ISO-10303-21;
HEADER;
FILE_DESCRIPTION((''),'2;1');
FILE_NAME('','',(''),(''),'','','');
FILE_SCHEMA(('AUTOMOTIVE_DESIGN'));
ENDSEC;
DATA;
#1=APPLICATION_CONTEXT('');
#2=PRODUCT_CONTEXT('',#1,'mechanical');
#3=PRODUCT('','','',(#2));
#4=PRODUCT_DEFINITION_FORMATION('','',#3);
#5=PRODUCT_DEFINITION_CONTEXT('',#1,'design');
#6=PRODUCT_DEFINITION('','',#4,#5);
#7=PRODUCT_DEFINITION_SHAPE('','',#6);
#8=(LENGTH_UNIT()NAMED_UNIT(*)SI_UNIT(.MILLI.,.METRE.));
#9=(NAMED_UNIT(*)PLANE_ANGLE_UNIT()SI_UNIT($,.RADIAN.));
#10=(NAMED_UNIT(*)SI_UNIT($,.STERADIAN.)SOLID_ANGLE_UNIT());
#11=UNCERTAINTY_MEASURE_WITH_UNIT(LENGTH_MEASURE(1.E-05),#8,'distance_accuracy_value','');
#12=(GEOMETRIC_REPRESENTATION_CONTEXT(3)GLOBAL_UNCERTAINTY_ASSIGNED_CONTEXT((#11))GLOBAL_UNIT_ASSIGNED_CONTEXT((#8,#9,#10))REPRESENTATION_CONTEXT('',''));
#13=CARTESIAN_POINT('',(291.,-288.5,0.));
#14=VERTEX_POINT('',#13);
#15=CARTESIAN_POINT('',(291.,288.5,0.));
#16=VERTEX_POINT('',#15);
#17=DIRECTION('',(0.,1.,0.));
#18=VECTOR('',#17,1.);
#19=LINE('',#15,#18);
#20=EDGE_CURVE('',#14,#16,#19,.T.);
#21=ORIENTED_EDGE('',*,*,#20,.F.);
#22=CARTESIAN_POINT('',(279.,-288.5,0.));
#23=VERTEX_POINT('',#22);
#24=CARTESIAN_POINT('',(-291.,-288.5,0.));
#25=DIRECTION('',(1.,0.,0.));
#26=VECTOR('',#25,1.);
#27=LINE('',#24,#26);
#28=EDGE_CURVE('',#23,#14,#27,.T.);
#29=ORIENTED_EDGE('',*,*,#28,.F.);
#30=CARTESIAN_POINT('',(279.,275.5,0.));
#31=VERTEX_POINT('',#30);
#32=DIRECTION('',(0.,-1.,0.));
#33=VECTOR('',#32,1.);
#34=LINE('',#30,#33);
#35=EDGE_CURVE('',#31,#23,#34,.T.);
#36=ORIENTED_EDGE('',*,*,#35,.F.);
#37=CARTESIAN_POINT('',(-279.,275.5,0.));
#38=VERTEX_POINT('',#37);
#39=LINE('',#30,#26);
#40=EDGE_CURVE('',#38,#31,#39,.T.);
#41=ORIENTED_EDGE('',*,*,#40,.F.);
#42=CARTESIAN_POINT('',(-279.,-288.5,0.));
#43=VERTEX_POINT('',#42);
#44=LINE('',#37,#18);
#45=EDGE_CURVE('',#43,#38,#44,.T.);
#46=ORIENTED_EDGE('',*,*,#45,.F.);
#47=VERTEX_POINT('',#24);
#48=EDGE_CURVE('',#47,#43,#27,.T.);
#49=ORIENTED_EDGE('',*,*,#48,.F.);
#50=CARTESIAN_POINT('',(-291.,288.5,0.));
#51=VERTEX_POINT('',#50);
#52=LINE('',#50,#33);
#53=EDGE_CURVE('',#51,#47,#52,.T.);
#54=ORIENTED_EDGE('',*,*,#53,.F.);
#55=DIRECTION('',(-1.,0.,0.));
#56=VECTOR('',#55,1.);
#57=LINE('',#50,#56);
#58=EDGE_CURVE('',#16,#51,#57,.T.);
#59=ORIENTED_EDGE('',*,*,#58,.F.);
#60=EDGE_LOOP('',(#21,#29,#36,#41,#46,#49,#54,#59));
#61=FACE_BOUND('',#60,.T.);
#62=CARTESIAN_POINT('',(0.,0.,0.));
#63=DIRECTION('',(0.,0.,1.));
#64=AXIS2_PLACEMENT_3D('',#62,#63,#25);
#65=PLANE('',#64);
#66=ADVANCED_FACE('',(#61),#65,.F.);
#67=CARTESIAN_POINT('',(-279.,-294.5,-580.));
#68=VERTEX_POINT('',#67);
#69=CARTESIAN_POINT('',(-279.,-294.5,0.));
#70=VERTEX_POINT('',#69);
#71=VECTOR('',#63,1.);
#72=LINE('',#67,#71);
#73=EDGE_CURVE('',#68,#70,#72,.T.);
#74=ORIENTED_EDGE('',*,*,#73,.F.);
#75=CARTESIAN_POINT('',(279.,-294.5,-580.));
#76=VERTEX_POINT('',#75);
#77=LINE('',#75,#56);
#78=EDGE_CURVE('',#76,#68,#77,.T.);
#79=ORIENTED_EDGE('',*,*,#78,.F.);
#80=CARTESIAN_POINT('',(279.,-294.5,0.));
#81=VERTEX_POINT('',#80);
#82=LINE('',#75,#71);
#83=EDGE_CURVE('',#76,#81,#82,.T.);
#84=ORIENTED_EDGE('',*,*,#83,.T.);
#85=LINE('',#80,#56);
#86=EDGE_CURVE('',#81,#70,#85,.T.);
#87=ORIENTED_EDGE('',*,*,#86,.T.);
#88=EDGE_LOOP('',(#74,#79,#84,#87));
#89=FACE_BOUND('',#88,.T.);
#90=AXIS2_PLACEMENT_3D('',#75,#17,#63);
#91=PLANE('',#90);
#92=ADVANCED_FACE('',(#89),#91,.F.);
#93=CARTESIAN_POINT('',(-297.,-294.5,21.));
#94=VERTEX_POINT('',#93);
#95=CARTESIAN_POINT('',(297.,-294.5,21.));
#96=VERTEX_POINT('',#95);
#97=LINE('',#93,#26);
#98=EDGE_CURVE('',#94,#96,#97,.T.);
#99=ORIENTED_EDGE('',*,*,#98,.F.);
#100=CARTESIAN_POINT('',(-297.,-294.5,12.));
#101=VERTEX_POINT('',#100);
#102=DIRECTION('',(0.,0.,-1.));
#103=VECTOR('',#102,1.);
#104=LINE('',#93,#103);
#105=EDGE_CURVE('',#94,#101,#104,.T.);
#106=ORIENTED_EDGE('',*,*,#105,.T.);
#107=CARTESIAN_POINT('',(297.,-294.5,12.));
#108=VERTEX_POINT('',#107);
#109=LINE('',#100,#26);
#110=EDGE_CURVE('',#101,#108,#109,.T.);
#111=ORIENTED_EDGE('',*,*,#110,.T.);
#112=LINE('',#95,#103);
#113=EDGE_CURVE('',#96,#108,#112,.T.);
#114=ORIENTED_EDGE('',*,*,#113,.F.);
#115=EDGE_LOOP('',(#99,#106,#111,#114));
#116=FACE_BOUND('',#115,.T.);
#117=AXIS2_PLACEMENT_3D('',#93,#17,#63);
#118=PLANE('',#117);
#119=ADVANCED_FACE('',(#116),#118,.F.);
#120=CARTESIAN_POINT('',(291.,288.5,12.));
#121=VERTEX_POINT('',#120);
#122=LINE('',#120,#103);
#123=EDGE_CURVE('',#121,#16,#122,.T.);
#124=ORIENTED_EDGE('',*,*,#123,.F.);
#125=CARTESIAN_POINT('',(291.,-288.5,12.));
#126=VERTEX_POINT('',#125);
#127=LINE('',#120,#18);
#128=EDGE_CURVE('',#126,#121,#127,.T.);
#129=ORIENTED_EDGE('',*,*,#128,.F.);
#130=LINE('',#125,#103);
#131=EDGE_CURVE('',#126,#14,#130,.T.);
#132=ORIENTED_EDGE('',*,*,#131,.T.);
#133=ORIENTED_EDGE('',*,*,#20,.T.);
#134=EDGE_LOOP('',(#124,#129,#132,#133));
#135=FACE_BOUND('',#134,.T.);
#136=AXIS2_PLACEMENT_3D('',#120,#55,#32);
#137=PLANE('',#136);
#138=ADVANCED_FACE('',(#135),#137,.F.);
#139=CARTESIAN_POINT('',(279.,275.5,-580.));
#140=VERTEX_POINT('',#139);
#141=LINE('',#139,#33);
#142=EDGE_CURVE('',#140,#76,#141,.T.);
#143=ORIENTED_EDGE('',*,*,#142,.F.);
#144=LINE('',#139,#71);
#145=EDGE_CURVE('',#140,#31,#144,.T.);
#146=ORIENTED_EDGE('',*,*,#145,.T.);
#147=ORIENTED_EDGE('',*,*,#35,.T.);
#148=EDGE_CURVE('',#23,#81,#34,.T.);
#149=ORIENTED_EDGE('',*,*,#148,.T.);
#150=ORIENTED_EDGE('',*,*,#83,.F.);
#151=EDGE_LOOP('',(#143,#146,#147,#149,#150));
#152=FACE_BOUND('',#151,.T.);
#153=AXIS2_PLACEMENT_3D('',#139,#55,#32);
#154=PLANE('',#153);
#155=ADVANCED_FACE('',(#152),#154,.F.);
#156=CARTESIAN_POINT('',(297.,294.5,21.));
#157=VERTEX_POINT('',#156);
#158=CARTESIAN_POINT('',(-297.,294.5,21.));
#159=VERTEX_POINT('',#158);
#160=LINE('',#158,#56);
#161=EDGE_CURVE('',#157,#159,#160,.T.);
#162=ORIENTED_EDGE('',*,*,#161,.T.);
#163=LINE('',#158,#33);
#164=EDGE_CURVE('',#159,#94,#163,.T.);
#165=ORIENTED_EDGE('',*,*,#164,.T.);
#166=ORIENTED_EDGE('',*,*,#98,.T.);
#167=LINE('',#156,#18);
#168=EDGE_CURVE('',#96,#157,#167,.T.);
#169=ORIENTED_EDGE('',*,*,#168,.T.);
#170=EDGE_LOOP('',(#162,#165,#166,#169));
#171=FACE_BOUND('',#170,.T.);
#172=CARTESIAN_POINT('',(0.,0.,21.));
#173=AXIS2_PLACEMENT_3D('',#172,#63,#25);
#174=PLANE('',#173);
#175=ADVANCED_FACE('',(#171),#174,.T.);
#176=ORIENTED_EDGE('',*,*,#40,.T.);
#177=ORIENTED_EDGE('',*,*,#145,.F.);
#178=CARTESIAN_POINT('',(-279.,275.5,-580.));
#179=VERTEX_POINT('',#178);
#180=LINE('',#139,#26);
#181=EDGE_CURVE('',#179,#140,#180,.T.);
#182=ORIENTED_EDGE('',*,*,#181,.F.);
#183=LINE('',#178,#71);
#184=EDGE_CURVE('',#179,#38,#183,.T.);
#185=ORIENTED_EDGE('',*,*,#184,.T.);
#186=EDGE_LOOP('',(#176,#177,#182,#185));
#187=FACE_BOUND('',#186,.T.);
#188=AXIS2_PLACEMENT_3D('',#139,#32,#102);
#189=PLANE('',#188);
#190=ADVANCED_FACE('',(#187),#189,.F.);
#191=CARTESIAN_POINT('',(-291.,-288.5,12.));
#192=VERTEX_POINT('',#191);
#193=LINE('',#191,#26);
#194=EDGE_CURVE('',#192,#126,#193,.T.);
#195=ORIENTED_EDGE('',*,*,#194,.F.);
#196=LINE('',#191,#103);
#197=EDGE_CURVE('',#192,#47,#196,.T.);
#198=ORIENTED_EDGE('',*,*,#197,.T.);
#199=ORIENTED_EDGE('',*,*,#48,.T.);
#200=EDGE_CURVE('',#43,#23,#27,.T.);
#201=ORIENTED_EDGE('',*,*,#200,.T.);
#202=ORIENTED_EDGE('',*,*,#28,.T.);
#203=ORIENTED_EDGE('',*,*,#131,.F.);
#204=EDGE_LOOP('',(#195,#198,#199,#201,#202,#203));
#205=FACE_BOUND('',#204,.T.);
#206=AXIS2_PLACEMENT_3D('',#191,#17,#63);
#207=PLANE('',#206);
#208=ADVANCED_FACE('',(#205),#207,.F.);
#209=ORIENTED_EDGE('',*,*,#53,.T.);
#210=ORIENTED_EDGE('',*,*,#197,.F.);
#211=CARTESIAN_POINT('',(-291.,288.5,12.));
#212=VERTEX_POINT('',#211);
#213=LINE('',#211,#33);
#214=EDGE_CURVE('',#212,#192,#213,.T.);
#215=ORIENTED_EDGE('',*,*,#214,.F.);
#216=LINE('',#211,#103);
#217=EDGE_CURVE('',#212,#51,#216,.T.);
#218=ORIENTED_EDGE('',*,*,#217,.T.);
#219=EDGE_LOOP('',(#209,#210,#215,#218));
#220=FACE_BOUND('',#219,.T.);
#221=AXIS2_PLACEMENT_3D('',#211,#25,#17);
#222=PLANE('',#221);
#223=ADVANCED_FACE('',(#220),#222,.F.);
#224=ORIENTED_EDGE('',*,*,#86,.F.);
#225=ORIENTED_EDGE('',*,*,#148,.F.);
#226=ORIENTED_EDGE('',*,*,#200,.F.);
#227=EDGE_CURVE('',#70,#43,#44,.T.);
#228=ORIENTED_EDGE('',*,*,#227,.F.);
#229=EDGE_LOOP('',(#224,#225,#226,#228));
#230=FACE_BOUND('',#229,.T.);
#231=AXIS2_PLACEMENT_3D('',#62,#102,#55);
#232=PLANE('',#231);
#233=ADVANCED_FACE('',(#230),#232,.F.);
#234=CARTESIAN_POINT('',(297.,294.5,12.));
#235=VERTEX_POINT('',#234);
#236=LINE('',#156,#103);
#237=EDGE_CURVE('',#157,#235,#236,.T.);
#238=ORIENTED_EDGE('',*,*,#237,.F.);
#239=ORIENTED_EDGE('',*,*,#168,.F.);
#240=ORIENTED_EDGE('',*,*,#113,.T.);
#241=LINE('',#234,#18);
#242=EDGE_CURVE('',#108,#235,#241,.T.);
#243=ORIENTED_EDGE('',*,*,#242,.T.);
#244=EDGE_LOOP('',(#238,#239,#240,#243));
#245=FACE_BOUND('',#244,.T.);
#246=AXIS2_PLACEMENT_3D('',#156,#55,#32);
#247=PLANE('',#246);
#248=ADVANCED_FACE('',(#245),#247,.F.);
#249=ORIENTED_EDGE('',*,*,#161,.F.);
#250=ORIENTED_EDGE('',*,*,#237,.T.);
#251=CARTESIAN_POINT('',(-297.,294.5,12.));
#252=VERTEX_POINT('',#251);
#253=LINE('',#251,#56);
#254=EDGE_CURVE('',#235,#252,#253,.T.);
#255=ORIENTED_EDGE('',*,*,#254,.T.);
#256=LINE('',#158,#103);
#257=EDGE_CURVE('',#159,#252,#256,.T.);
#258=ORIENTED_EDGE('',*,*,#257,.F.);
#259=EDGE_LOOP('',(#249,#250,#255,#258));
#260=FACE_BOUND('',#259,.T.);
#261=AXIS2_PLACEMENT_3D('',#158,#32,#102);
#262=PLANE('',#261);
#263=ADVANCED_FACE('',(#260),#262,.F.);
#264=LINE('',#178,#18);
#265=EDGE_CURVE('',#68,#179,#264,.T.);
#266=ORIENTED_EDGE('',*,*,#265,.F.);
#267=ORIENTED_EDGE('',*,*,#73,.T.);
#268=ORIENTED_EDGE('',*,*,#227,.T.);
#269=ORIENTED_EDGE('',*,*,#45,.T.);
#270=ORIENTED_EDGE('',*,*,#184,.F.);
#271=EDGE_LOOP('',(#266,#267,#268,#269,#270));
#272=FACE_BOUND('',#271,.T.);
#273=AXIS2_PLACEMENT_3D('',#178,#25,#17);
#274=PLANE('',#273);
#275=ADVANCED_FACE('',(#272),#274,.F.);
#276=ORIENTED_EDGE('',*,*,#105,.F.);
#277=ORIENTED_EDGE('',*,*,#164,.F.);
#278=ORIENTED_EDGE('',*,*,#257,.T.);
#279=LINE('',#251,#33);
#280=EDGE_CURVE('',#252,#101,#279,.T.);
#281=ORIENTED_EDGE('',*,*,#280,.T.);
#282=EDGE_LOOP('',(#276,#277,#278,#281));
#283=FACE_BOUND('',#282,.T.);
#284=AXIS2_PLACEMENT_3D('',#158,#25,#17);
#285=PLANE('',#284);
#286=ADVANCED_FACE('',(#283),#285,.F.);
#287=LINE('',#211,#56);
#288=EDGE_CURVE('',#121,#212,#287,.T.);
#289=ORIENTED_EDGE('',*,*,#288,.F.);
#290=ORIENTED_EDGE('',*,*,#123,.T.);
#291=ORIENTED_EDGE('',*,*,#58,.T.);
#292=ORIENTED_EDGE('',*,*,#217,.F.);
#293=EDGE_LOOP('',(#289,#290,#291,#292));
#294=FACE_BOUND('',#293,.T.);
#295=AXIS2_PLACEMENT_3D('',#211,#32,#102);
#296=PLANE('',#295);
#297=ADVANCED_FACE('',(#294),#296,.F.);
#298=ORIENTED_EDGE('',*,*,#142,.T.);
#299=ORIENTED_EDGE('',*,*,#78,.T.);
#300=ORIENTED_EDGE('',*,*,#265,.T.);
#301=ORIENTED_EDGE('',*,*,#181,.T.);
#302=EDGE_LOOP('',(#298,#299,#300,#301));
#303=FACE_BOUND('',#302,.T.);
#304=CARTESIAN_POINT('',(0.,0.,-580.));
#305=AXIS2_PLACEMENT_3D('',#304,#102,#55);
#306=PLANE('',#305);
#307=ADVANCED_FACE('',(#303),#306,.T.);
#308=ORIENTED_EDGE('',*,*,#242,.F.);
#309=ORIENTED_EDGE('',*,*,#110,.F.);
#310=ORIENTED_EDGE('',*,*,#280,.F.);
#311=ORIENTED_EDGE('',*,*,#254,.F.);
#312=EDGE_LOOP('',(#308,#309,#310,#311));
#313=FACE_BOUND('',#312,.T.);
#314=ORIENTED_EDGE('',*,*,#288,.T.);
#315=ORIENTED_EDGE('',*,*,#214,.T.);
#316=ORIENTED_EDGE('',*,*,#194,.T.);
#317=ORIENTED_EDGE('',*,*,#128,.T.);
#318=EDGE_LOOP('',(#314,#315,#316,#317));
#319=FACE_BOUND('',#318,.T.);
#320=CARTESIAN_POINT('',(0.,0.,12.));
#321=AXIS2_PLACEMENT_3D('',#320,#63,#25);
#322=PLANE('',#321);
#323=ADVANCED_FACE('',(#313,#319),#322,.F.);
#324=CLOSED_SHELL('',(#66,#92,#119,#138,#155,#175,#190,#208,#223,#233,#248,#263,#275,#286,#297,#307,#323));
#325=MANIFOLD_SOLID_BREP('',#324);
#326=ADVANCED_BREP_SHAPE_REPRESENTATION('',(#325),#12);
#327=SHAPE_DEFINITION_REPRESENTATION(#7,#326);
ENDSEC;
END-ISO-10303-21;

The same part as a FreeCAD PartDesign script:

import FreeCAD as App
import Part
import Sketcher
Q = App.Units.Quantity


def add_polygon(sketch, points):
    """Adds a closed chain of lines whose ends are joined by coincident constraints."""
    first, n = sketch.GeometryCount, len(points)
    for a, b in zip(points, points[1:] + points[:1]):
        sketch.addGeometry(Part.LineSegment(App.Vector(*a, 0), App.Vector(*b, 0)), False)
    for i in range(n):
        sketch.addConstraint(Sketcher.Constraint("Coincident", first + i, 2, first + (i + 1) % n, 1))

doc = App.newDocument("Part")
body = doc.addObject("PartDesign::Body", "Body")

# Sketch on XY plane
sketch1 = body.newObject("Sketcher::SketchObject", "Sketch")
sketch1.AttachmentSupport = (doc.getObject("XY_Plane"), [""])
sketch1.MapMode = "FlatFace"
add_polygon(sketch1, [(-291, 288), (-291, -288), (291, -288), (291, 288)])  # lines 0-3
sketch1.addConstraint([
    Sketcher.Constraint("Vertical", 0),
    Sketcher.Constraint("Horizontal", 1),
    Sketcher.Constraint("Vertical", 2),
    Sketcher.Constraint("Horizontal", 3),
    Sketcher.Constraint("Symmetric", 0, 2, 2, 2, -1, 1),
    Sketcher.Constraint("DistanceX", 1, 1, 1, 2, Q("582 mm")),
    Sketcher.Constraint("DistanceY", 0, 2, 0, 1, Q("577 mm")),
])
pad1 = body.newObject("PartDesign::Pad", "Pad")
pad1.Profile = sketch1
pad1.Length = 12

# Sketch on XY plane
sketch2 = body.newObject("Sketcher::SketchObject", "Sketch001")
sketch2.AttachmentSupport = (doc.getObject("XY_Plane"), [""])
sketch2.MapMode = "FlatFace"
add_polygon(sketch2, [(279, 276), (279, -294), (-279, -294), (-279, 276)])  # lines 0-3
sketch2.addConstraint([
    Sketcher.Constraint("Vertical", 0),
    Sketcher.Constraint("Horizontal", 1),
    Sketcher.Constraint("Vertical", 2),
    Sketcher.Constraint("Horizontal", 3),
    Sketcher.Constraint("DistanceX", 1, 2, 1, 1, Q("558 mm")),
    Sketcher.Constraint("DistanceY", 0, 2, 0, 1, Q("570 mm")),
    Sketcher.Constraint("DistanceX", -1, 1, 0, 2, Q("279 mm")),
    Sketcher.Constraint("DistanceY", 0, 2, -1, 1, Q("294.5 mm")),
])
pad2 = body.newObject("PartDesign::Pad", "Pad001")
pad2.Profile = sketch2
pad2.Length = 580
pad2.Reversed = True

# Sketch on XY plane
sketch3 = body.newObject("Sketcher::SketchObject", "Sketch002")
sketch3.AttachmentSupport = (doc.getObject("XY_Plane"), [""])
sketch3.MapMode = "FlatFace"
sketch3.AttachmentOffset = App.Placement(App.Vector(0, 0, 12), App.Rotation())
add_polygon(sketch3, [(-297, 294), (-297, -294), (297, -294), (297, 294)])  # lines 0-3
sketch3.addConstraint([
    Sketcher.Constraint("Vertical", 0),
    Sketcher.Constraint("Horizontal", 1),
    Sketcher.Constraint("Vertical", 2),
    Sketcher.Constraint("Horizontal", 3),
    Sketcher.Constraint("Symmetric", 0, 2, 2, 2, -1, 1),
    Sketcher.Constraint("DistanceX", 1, 1, 1, 2, Q("594 mm")),
    Sketcher.Constraint("DistanceY", 0, 2, 0, 1, Q("589 mm")),
])
pad3 = body.newObject("PartDesign::Pad", "Pad002")
pad3.Profile = sketch3
pad3.Length = 9

doc.recompute()
